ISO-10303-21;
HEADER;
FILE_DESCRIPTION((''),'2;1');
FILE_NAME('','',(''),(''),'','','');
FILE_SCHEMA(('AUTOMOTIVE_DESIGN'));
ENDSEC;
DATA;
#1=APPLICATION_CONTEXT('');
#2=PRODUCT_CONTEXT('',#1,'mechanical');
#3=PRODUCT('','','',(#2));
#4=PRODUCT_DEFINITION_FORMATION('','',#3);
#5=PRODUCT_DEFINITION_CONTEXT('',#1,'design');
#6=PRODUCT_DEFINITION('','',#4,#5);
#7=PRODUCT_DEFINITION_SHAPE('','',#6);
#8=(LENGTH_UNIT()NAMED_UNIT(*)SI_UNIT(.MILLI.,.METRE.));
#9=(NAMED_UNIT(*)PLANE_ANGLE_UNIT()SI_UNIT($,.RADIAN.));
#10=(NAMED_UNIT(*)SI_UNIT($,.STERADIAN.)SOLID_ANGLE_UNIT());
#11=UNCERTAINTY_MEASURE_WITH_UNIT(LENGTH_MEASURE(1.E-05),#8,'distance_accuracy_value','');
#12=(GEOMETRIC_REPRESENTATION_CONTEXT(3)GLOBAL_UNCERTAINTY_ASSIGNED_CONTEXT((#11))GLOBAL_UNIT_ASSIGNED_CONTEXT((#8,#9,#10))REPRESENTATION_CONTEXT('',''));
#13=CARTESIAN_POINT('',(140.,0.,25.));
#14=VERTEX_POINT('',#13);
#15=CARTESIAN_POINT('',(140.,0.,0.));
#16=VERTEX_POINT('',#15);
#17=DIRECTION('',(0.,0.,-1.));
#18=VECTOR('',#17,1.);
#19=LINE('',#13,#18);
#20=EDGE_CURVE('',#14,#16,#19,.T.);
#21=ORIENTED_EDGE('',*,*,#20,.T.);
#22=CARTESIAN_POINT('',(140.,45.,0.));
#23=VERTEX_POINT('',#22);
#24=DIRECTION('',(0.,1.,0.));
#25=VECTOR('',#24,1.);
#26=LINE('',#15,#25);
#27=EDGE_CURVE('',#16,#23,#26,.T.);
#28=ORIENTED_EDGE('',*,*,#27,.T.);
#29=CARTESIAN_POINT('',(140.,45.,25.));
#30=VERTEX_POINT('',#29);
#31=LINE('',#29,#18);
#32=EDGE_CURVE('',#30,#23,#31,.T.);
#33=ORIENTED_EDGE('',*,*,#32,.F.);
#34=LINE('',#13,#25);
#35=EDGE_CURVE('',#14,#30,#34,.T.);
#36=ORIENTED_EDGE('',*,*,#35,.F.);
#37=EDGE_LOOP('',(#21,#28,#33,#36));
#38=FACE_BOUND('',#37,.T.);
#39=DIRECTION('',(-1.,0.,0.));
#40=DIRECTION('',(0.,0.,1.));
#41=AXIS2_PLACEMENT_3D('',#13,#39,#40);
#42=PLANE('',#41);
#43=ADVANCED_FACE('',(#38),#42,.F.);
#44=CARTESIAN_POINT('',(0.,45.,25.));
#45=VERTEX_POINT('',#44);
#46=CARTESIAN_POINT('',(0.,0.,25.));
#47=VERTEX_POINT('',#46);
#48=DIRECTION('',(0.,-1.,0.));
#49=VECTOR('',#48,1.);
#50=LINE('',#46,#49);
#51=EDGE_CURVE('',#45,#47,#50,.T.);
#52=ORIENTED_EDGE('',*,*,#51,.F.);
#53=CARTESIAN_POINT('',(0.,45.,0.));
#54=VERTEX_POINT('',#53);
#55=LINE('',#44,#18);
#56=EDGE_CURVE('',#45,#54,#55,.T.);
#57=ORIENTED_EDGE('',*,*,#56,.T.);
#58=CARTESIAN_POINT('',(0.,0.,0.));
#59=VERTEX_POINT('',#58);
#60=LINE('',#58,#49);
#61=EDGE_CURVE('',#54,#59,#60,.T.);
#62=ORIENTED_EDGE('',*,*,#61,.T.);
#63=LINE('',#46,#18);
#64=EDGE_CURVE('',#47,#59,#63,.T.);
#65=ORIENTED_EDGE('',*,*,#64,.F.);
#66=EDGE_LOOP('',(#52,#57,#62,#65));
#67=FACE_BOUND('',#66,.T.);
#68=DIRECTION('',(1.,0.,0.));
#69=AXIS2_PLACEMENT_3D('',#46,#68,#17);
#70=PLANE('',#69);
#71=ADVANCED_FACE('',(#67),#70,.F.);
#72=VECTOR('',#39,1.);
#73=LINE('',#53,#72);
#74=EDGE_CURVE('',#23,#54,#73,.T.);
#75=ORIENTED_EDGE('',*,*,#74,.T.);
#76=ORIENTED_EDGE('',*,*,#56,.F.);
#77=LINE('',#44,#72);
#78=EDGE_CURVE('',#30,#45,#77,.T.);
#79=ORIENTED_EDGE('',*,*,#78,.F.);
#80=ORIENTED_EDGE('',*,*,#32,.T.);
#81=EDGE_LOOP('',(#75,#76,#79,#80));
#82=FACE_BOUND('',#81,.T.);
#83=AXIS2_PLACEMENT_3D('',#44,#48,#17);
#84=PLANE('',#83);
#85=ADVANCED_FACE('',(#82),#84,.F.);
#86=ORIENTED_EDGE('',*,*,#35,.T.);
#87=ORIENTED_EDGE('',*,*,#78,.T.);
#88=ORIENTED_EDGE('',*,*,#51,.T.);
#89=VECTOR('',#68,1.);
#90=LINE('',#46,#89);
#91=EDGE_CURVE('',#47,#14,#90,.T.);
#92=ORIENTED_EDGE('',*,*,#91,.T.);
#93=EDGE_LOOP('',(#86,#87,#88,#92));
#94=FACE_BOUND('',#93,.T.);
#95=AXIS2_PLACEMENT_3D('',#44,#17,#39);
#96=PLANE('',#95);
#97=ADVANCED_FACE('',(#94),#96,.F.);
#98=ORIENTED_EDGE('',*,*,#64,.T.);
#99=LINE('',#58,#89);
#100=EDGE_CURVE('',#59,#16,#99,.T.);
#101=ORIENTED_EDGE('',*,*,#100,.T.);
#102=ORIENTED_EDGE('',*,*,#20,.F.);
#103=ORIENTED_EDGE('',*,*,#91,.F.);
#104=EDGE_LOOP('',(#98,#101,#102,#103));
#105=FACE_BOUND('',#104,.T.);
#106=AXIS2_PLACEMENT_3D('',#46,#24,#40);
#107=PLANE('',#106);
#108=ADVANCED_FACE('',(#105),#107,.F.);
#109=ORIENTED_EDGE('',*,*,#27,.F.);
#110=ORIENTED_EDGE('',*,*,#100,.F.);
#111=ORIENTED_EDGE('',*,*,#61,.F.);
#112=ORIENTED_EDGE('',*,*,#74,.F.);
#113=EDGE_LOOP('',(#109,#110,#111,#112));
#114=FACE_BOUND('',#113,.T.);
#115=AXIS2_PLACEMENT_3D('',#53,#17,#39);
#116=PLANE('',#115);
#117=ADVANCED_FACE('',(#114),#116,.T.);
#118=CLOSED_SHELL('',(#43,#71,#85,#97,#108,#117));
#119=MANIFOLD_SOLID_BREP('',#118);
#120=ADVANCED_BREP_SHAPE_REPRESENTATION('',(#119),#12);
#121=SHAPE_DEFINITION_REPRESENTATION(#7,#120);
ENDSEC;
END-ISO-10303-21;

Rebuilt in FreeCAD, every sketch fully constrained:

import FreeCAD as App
import Part
import Sketcher

V = App.Vector
Q = App.Units.Quantity

doc = App.newDocument("Part")
body = doc.addObject("PartDesign::Body", "Body")

# Sketch on XY plane
sketch1 = body.newObject("Sketcher::SketchObject", "Sketch")
sketch1.AttachmentSupport = (doc.getObject("XY_Plane"), [""])
sketch1.MapMode = "FlatFace"
sketch1.addGeometry(Part.LineSegment(V(0, 45, 0), V(0, 0, 0)), False)
sketch1.addGeometry(Part.LineSegment(V(0, 0, 0), V(140, 0, 0)), False)
sketch1.addGeometry(Part.LineSegment(V(140, 0, 0), V(140, 45, 0)), False)
sketch1.addGeometry(Part.LineSegment(V(140, 45, 0), V(0, 45, 0)), False)
sketch1.addConstraint(Sketcher.Constraint("Coincident", 0, 2, 1, 1))
sketch1.addConstraint(Sketcher.Constraint("Coincident", 1, 2, 2, 1))
sketch1.addConstraint(Sketcher.Constraint("Coincident", 2, 2, 3, 1))
sketch1.addConstraint(Sketcher.Constraint("Coincident", 3, 2, 0, 1))
sketch1.addConstraint(Sketcher.Constraint("Vertical", 0))
sketch1.addConstraint(Sketcher.Constraint("Horizontal", 1))
sketch1.addConstraint(Sketcher.Constraint("Vertical", 2))
sketch1.addConstraint(Sketcher.Constraint("Horizontal", 3))
sketch1.addConstraint(Sketcher.Constraint("Coincident", 0, 2, -1, 1))
sketch1.addConstraint(Sketcher.Constraint("DistanceX", 1, 1, 1, 2, Q("140 mm")))
sketch1.addConstraint(Sketcher.Constraint("DistanceY", 0, 2, 0, 1, Q("45 mm")))
pad1 = body.newObject("PartDesign::Pad", "Pad")
pad1.Profile = sketch1
pad1.Length = 25

# Sketch on XY plane
sketch2 = body.newObject("Sketcher::SketchObject", "Sketch001")
sketch2.AttachmentSupport = (doc.getObject("XY_Plane"), [""])
sketch2.MapMode = "FlatFace"
sketch2.addGeometry(Part.LineSegment(V(0, 45, 0), V(0, 0, 0)), False)
sketch2.addGeometry(Part.LineSegment(V(0, 0, 0), V(140, 0, 0)), False)
sketch2.addGeometry(Part.LineSegment(V(140, 0, 0), V(140, 45, 0)), False)
sketch2.addGeometry(Part.LineSegment(V(140, 45, 0), V(0, 45, 0)), False)
sketch2.addConstraint(Sketcher.Constraint("Coincident", 0, 2, 1, 1))
sketch2.addConstraint(Sketcher.Constraint("Coincident", 1, 2, 2, 1))
sketch2.addConstraint(Sketcher.Constraint("Coincident", 2, 2, 3, 1))
sketch2.addConstraint(Sketcher.Constraint("Coincident", 3, 2, 0, 1))
sketch2.addConstraint(Sketcher.Constraint("Vertical", 0))
sketch2.addConstraint(Sketcher.Constraint("Horizontal", 1))
sketch2.addConstraint(Sketcher.Constraint("Vertical", 2))
sketch2.addConstraint(Sketcher.Constraint("Horizontal", 3))
sketch2.addConstraint(Sketcher.Constraint("Coincident", 0, 2, -1, 1))
sketch2.addConstraint(Sketcher.Constraint("DistanceX", 1, 1, 1, 2, Q("140 mm")))
sketch2.addConstraint(Sketcher.Constraint("DistanceY", 0, 2, 0, 1, Q("45 mm")))
pad2 = body.newObject("PartDesign::Pad", "Pad001")
pad2.Profile = sketch2
pad2.Length = 12.5

doc.recompute()
